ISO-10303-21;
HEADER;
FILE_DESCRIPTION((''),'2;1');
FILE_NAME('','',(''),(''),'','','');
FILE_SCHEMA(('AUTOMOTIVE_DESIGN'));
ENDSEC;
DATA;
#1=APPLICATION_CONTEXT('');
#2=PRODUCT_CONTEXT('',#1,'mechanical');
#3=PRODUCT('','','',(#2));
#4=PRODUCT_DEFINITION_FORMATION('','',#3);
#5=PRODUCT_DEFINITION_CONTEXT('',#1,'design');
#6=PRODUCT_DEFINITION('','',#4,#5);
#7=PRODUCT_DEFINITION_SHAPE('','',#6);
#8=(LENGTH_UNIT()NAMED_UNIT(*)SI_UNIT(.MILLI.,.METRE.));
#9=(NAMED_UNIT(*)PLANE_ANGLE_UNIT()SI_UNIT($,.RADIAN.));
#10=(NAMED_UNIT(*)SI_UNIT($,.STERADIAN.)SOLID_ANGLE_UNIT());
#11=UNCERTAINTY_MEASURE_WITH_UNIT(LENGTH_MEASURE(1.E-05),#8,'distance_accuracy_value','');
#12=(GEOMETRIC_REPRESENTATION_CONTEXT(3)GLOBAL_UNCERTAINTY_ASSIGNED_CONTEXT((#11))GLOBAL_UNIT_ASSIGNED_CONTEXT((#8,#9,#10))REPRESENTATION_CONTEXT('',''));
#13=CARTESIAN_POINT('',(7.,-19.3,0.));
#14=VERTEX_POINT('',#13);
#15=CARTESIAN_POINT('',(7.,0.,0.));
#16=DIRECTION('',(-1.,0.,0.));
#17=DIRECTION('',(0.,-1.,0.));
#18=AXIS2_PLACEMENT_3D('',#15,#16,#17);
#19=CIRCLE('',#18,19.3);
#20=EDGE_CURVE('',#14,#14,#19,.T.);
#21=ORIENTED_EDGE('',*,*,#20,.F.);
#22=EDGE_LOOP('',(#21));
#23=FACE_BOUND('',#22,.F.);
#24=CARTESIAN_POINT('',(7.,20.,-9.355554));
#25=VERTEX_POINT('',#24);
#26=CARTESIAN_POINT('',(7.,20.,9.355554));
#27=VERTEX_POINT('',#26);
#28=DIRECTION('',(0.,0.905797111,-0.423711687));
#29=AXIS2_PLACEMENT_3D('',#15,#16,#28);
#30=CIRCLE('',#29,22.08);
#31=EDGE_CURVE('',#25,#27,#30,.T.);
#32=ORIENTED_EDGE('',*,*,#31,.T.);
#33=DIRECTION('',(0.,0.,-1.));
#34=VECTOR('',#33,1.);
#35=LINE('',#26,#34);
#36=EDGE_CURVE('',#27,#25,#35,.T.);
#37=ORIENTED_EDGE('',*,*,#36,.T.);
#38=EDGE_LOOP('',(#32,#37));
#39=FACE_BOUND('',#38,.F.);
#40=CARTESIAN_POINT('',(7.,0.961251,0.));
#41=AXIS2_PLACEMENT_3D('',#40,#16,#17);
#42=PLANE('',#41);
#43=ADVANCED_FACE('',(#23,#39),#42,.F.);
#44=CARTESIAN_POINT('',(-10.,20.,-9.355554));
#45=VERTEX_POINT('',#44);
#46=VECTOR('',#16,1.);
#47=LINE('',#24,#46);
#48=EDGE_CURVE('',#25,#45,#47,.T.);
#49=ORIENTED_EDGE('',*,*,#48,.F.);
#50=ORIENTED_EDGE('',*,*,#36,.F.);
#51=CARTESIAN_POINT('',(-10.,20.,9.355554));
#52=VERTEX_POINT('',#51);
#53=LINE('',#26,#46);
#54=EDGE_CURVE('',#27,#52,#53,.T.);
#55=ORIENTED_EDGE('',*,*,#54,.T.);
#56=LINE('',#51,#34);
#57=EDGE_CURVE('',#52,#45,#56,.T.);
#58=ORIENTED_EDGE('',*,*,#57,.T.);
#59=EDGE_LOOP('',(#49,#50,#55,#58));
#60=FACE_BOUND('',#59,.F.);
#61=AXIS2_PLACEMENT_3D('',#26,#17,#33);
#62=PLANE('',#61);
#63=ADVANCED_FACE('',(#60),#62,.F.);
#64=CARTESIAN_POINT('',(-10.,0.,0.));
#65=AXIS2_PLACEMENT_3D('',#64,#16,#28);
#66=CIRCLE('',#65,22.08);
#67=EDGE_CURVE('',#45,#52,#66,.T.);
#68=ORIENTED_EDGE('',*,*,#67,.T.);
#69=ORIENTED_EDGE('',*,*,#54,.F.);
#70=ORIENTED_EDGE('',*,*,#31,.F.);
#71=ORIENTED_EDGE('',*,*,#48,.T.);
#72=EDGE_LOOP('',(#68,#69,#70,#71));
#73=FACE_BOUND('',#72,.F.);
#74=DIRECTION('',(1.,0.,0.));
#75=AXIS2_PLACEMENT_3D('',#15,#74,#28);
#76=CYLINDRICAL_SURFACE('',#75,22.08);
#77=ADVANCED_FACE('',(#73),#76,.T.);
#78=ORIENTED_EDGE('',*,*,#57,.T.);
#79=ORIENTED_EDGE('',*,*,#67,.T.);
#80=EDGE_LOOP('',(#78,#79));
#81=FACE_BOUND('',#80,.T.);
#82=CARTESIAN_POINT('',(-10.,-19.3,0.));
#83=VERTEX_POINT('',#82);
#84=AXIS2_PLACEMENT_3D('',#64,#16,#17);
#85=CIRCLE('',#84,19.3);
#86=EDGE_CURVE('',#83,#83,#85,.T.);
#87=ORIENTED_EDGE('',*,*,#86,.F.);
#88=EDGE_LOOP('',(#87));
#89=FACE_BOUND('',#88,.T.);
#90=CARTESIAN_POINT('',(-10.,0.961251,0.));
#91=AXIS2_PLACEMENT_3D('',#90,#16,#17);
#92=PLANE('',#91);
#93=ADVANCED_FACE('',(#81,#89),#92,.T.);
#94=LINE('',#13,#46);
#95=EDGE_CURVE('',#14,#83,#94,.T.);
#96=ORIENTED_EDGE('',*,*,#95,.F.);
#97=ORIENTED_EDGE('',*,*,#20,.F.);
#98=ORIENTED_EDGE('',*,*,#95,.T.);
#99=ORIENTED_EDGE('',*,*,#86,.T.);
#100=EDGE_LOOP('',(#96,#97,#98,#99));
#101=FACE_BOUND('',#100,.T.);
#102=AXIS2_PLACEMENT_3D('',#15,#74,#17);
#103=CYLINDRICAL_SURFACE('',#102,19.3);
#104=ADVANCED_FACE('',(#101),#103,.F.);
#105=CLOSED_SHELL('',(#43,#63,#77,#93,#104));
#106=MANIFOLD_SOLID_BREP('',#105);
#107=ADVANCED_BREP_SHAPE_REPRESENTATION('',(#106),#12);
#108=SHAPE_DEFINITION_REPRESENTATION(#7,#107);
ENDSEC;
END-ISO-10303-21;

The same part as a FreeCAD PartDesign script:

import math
import FreeCAD as App
import Part
import Sketcher
from FreeCAD import Vector
Q = App.Units.Quantity

doc = App.newDocument("Part")
params = doc.addObject("Spreadsheet::Sheet", "Params")
for row, (alias, value) in enumerate([
    ("sketch1_diameter", "38.6 mm"),
    ("sketch1_radius", "22.08 mm"),
    ("pad1_length", "17 mm"),
], start=1):
    params.set(f"A{row}", alias)
    params.set(f"B{row}", "=" + value)
    params.setAlias(f"B{row}", alias)

body = doc.addObject("PartDesign::Body", "Body")

sketch1 = body.newObject("Sketcher::SketchObject", "Sketch")
sketch1.AttachmentSupport = (doc.getObject("YZ_Plane"), [""])
sketch1.MapMode = "FlatFace"
sketch1.AttachmentOffset = App.Placement(Vector(0, 0, 7), App.Rotation())
sketch1.addGeometry(Part.ArcOfCircle(Part.Circle(Vector(0, 0, 0), Vector(0, 0, 1), 22), math.radians(25), math.radians(335)), False)
sketch1.addGeometry(Part.LineSegment(Vector(20, 9, 0), Vector(20, -9, 0)), False)
sketch1.addGeometry(Part.Circle(Vector(0, 0, 0), Vector(0, 0, 1), 19), False)
sketch1.addConstraint(Sketcher.Constraint("Coincident", 0, 1, 1, 1))
sketch1.addConstraint(Sketcher.Constraint("Coincident", 1, 2, 0, 2))
sketch1.addConstraint(Sketcher.Constraint("Vertical", 1))
sketch1.addConstraint(Sketcher.Constraint("Coincident", 0, 3, -1, 1))
sketch1.addConstraint(Sketcher.Constraint("Coincident", 2, 3, -1, 1))
sketch1.addConstraint(Sketcher.Constraint("Diameter", 2, Q("38.6 mm")))
sketch1.addConstraint(Sketcher.Constraint("Radius", 0, Q("22.08 mm")))
sketch1.addConstraint(Sketcher.Constraint("DistanceX", -1, 1, 0, 1, Q("20 mm")))
sketch1.setExpression("Constraints[5]", "Params.sketch1_diameter")
sketch1.setExpression("Constraints[6]", "Params.sketch1_radius")
pad1 = body.newObject("PartDesign::Pad", "Pad")
pad1.Profile = sketch1
pad1.setExpression("Length", "Params.pad1_length")
pad1.Reversed = True

doc.recompute()
